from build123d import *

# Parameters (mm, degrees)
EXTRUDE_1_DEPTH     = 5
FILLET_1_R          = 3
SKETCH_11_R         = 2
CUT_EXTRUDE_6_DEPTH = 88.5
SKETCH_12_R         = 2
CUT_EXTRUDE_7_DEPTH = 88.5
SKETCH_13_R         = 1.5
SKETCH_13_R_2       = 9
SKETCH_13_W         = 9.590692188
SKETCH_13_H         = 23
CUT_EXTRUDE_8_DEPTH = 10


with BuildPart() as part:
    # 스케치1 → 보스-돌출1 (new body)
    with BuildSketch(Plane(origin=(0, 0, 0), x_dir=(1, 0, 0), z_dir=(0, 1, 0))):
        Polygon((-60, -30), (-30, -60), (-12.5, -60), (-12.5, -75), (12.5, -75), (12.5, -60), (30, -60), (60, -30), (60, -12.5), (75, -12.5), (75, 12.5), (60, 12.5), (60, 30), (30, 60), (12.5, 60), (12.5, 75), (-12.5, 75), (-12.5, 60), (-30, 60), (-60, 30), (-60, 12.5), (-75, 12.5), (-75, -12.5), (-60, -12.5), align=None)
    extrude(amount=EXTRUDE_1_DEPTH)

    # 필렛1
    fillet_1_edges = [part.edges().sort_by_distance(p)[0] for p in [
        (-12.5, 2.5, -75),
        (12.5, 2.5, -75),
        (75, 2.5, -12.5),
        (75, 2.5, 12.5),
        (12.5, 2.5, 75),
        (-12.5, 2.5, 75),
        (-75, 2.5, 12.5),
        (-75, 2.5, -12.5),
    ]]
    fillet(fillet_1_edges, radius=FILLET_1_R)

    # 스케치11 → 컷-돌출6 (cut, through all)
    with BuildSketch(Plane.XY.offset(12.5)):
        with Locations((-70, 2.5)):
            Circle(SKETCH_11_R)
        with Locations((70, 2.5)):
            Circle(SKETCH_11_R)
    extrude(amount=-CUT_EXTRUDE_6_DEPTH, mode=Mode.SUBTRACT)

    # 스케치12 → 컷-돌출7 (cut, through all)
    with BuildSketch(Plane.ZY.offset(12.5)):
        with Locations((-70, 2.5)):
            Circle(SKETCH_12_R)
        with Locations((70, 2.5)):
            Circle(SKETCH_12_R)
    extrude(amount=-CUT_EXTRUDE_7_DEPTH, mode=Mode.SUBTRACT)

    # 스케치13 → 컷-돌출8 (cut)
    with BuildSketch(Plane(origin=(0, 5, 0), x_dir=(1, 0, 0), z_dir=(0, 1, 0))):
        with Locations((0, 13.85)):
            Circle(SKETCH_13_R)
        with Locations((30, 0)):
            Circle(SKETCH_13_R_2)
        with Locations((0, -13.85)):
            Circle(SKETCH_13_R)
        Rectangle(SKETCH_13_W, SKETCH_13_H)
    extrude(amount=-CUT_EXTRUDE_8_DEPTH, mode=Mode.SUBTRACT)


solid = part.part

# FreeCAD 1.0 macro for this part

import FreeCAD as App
import Part
import Sketcher

V = App.Vector


def edges_at(feature, points):
    """Names of the edges that pass closest to the given points."""
    edges = feature.Shape.Edges
    near = lambda p: min(range(len(edges)), key=lambda i: edges[i].distToShape(Part.Vertex(*p))[0])
    return sorted({f"Edge{near(p) + 1}" for p in points})

doc = App.newDocument("Part")
body = doc.addObject("PartDesign::Body", "Body")

sketch1 = body.newObject("Sketcher::SketchObject", "Sketch")
sketch1.AttachmentSupport = (doc.getObject("XZ_Plane"), [""])
sketch1.MapMode = "FlatFace"
sketch1.addGeometry([
    Part.LineSegment(V(-60, 30, 0), V(-30, 60, 0)),
    Part.LineSegment(V(-30, 60, 0), V(-12.5, 60, 0)),
    Part.LineSegment(V(-12.5, 60, 0), V(-12.5, 75, 0)),
    Part.LineSegment(V(-12.5, 75, 0), V(12.5, 75, 0)),
    Part.LineSegment(V(12.5, 75, 0), V(12.5, 60, 0)),
    Part.LineSegment(V(12.5, 60, 0), V(30, 60, 0)),
    Part.LineSegment(V(30, 60, 0), V(60, 30, 0)),
    Part.LineSegment(V(60, 30, 0), V(60, 12.5, 0)),
    Part.LineSegment(V(60, 12.5, 0), V(75, 12.5, 0)),
    Part.LineSegment(V(75, 12.5, 0), V(75, -12.5, 0)),
    Part.LineSegment(V(75, -12.5, 0), V(60, -12.5, 0)),
    Part.LineSegment(V(60, -12.5, 0), V(60, -30, 0)),
    Part.LineSegment(V(60, -30, 0), V(30, -60, 0)),
    Part.LineSegment(V(30, -60, 0), V(12.5, -60, 0)),
    Part.LineSegment(V(12.5, -60, 0), V(12.5, -75, 0)),
    Part.LineSegment(V(12.5, -75, 0), V(-12.5, -75, 0)),
    Part.LineSegment(V(-12.5, -75, 0), V(-12.5, -60, 0)),
    Part.LineSegment(V(-12.5, -60, 0), V(-30, -60, 0)),
    Part.LineSegment(V(-30, -60, 0), V(-60, -30, 0)),
    Part.LineSegment(V(-60, -30, 0), V(-60, -12.5, 0)),
    Part.LineSegment(V(-60, -12.5, 0), V(-75, -12.5, 0)),
    Part.LineSegment(V(-75, -12.5, 0), V(-75, 12.5, 0)),
    Part.LineSegment(V(-75, 12.5, 0), V(-60, 12.5, 0)),
    Part.LineSegment(V(-60, 12.5, 0), V(-60, 30, 0)),
], False)
sketch1.addConstraint([
    Sketcher.Constraint("Coincident", 0, 2, 1, 1),
    Sketcher.Constraint("Coincident", 1, 2, 2, 1),
    Sketcher.Constraint("Coincident", 2, 2, 3, 1),
    Sketcher.Constraint("Coincident", 3, 2, 4, 1),
    Sketcher.Constraint("Coincident", 4, 2, 5, 1),
    Sketcher.Constraint("Coincident", 5, 2, 6, 1),
    Sketcher.Constraint("Coincident", 6, 2, 7, 1),
    Sketcher.Constraint("Coincident", 7, 2, 8, 1),
    Sketcher.Constraint("Coincident", 8, 2, 9, 1),
    Sketcher.Constraint("Coincident", 9, 2, 10, 1),
    Sketcher.Constraint("Coincident", 10, 2, 11, 1),
    Sketcher.Constraint("Coincident", 11, 2, 12, 1),
    Sketcher.Constraint("Coincident", 12, 2, 13, 1),
    Sketcher.Constraint("Coincident", 13, 2, 14, 1),
    Sketcher.Constraint("Coincident", 14, 2, 15, 1),
    Sketcher.Constraint("Coincident", 15, 2, 16, 1),
    Sketcher.Constraint("Coincident", 16, 2, 17, 1),
    Sketcher.Constraint("Coincident", 17, 2, 18, 1),
    Sketcher.Constraint("Coincident", 18, 2, 19, 1),
    Sketcher.Constraint("Coincident", 19, 2, 20, 1),
    Sketcher.Constraint("Coincident", 20, 2, 21, 1),
    Sketcher.Constraint("Coincident", 21, 2, 22, 1),
    Sketcher.Constraint("Coincident", 22, 2, 23, 1),
    Sketcher.Constraint("Coincident", 23, 2, 0, 1),
    Sketcher.Constraint("Horizontal", 1),
    Sketcher.Constraint("Vertical", 2),
    Sketcher.Constraint("Horizontal", 3),
    Sketcher.Constraint("Vertical", 4),
    Sketcher.Constraint("Horizontal", 5),
    Sketcher.Constraint("Vertical", 7),
    Sketcher.Constraint("Horizontal", 8),
    Sketcher.Constraint("Vertical", 9),
    Sketcher.Constraint("Horizontal", 10),
    Sketcher.Constraint("Vertical", 11),
    Sketcher.Constraint("Horizontal", 13),
    Sketcher.Constraint("Vertical", 14),
    Sketcher.Constraint("Horizontal", 15),
    Sketcher.Constraint("Vertical", 16),
    Sketcher.Constraint("Horizontal", 17),
    Sketcher.Constraint("Vertical", 19),
    Sketcher.Constraint("Horizontal", 20),
    Sketcher.Constraint("Vertical", 21),
    Sketcher.Constraint("Horizontal", 22),
    Sketcher.Constraint("Vertical", 23),
    Sketcher.Constraint("Symmetric", 0, 2, 12, 2, -1, 1),
    Sketcher.Constraint("Symmetric", 2, 2, 14, 2, -1, 1),
    Sketcher.Constraint("Symmetric", 4, 2, 16, 2, -1, 1),
    Sketcher.Constraint("Symmetric", 6, 2, 18, 2, -1, 1),
    Sketcher.Constraint("Symmetric", 8, 2, 20, 2, -1, 1),
    Sketcher.Constraint("Symmetric", 10, 2, 22, 2, -1, 1),
    Sketcher.Constraint("Symmetric", 1, 2, 4, 2, -2),
    Sketcher.Constraint("Symmetric", 11, 2, 18, 2, -2),
    Sketcher.Constraint("Perpendicular", 0, 6),
    Sketcher.Constraint("Perpendicular", 6, 12),
    Sketcher.Constraint("Perpendicular", 12, 18),
    Sketcher.Constraint("Horizontal", 10, 2, 19, 2),
    Sketcher.Constraint("Vertical", 5, 2, 12, 2),
    Sketcher.Constraint("Equal", 22, 2),
    Sketcher.Constraint("Equal", 17, 7),
    Sketcher.Constraint("Equal", 15, 9),
    Sketcher.Constraint("DistanceX", 3, 1, 3, 2, 25.0),
    Sketcher.Constraint("DistanceX", 8, 1, 8, 2, 15.0),
    Sketcher.Constraint("DistanceX", 1, 1, 1, 2, 17.5),
    Sketcher.Constraint("DistanceY", -1, 1, 0, 2, 60.0),
])
pad1 = body.newObject("PartDesign::Pad", "Pad")
pad1.Profile = sketch1
pad1.Length = 5
pad1.Reversed = True
doc.recompute()

fillet = body.newObject("PartDesign::Fillet", "Fillet")
fillet.Base = (pad1, edges_at(pad1, [
    (-12.5, 2.5, -75),
    (12.5, 2.5, -75),
    (75, 2.5, -12.5),
    (75, 2.5, 12.5),
    (12.5, 2.5, 75),
    (-12.5, 2.5, 75),
    (-75, 2.5, 12.5),
    (-75, 2.5, -12.5),
]))
fillet.Radius = 3

sketch2 = body.newObject("Sketcher::SketchObject", "Sketch001")
sketch2.AttachmentSupport = (doc.getObject("XY_Plane"), [""])
sketch2.MapMode = "FlatFace"
sketch2.AttachmentOffset = App.Placement(V(0, 0, 12.5), App.Rotation())
sketch2.addGeometry([
    Part.Circle(V(-70, 2.5, 0), V(0, 0, 1), 2),
    Part.Circle(V(70, 2.5, 0), V(0, 0, 1), 2),
], False)
sketch2.addConstraint([
    Sketcher.Constraint("Equal", 0, 1),
    Sketcher.Constraint("Symmetric", 0, 3, 1, 3, -2),
    Sketcher.Constraint("Diameter", 0, 4.0),
    Sketcher.Constraint("DistanceX", 0, 3, -1, 1, 70.0),
    Sketcher.Constraint("DistanceY", -1, 1, 0, 3, 2.5),
])
pocket1 = body.newObject("PartDesign::Pocket", "Pocket")
pocket1.Profile = sketch2
pocket1.Type = "ThroughAll"

sketch3 = body.newObject("Sketcher::SketchObject", "Sketch002")
sketch3.AttachmentSupport = (doc.getObject("YZ_Plane"), [""])
sketch3.MapMode = "FlatFace"
sketch3.AttachmentOffset = App.Placement(V(0, 0, -12.5), App.Rotation())
sketch3.addGeometry([
    Part.Circle(V(2.5, -70, 0), V(0, 0, 1), 2),
    Part.Circle(V(2.5, 70, 0), V(0, 0, 1), 2),
], False)
sketch3.addConstraint([
    Sketcher.Constraint("Equal", 0, 1),
    Sketcher.Constraint("Symmetric", 0, 3, 1, 3, -1),
    Sketcher.Constraint("Diameter", 0, 4.0),
    Sketcher.Constraint("DistanceY", 0, 3, -1, 1, 70.0),
    Sketcher.Constraint("DistanceX", -1, 1, 0, 3, 2.5),
])
pocket2 = body.newObject("PartDesign::Pocket", "Pocket001")
pocket2.Profile = sketch3
pocket2.Type = "ThroughAll"
pocket2.Reversed = True

sketch4 = body.newObject("Sketcher::SketchObject", "Sketch003")
sketch4.AttachmentSupport = (doc.getObject("XZ_Plane"), [""])
sketch4.MapMode = "FlatFace"
sketch4.AttachmentOffset = App.Placement(V(0, 0, -5), App.Rotation())
sketch4.addGeometry([
    Part.Circle(V(0, -13.85, 0), V(0, 0, 1), 1.5),
    Part.Circle(V(30, 0, 0), V(0, 0, 1), 9),
    Part.Circle(V(0, 13.85, 0), V(0, 0, 1), 1.5),
    Part.LineSegment(V(-4.795346, -11.5, 0), V(-4.795346, 11.5, 0)),
    Part.LineSegment(V(-4.795346, 11.5, 0), V(4.795346, 11.5, 0)),
    Part.LineSegment(V(4.795346, 11.5, 0), V(4.795346, -11.5, 0)),
    Part.LineSegment(V(4.795346, -11.5, 0), V(-4.795346, -11.5, 0)),
], False)
sketch4.addConstraint([
    Sketcher.Constraint("Coincident", 3, 2, 4, 1),
    Sketcher.Constraint("Coincident", 4, 2, 5, 1),
    Sketcher.Constraint("Coincident", 5, 2, 6, 1),
    Sketcher.Constraint("Coincident", 6, 2, 3, 1),
    Sketcher.Constraint("Vertical", 3),
    Sketcher.Constraint("Horizontal", 4),
    Sketcher.Constraint("Vertical", 5),
    Sketcher.Constraint("Horizontal", 6),
    Sketcher.Constraint("Equal", 0, 2),
    Sketcher.Constraint("Symmetric", 0, 3, 2, 3, -1, 1),
    Sketcher.Constraint("Symmetric", 3, 2, 5, 2, -1, 1),
    Sketcher.Constraint("PointOnObject", 0, 3, -2),
    Sketcher.Constraint("PointOnObject", 1, 3, -1),
    Sketcher.Constraint("Diameter", 0, 3.0),
    Sketcher.Constraint("Diameter", 1, 18.0),
    Sketcher.Constraint("DistanceY", 3, 1, 3, 2, 23.0),
    Sketcher.Constraint("DistanceX", -1, 1, 1, 3, 30.0),
    Sketcher.Constraint("DistanceY", 0, 3, 2, 3, 27.7),
    Sketcher.Constraint("DistanceX", 4, 1, 4, 2, 9.590692),
])
pocket3 = body.newObject("PartDesign::Pocket", "Pocket002")
pocket3.Profile = sketch4
pocket3.Length = 10
pocket3.Reversed = True

doc.recompute()
